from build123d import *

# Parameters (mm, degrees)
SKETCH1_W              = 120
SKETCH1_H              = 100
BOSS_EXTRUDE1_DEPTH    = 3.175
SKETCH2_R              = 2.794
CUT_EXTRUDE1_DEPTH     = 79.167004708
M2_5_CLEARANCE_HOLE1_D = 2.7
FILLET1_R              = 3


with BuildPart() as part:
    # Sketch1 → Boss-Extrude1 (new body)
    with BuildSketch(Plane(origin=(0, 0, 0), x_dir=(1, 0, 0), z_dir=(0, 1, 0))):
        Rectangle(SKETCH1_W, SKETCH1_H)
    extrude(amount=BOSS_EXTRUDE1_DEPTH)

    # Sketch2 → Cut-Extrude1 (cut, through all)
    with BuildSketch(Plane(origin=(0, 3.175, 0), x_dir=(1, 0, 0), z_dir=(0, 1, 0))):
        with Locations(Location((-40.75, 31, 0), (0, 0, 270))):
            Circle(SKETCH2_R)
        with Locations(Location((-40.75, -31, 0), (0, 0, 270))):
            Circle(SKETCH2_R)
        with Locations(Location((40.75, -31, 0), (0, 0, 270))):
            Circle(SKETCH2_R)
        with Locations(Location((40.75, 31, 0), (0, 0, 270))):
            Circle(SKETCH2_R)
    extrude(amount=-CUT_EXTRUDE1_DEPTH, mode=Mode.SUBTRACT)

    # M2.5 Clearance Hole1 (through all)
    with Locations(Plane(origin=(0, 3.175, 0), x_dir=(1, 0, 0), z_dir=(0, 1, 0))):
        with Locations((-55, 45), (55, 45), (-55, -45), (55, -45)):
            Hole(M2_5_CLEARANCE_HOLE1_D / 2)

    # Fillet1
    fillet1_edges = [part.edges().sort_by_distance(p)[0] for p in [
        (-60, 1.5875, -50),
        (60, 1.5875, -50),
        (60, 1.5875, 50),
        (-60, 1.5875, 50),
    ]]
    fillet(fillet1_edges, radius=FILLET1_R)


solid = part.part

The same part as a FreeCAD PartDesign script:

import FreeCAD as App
import Part
import Sketcher

V = App.Vector
Q = App.Units.Quantity


def edges_at(feature, points):
    """Names of the edges that pass closest to the given points."""
    edges = feature.Shape.Edges
    near = lambda p: min(range(len(edges)), key=lambda i: edges[i].distToShape(Part.Vertex(*p))[0])
    return sorted({f"Edge{near(p) + 1}" for p in points})

doc = App.newDocument("Part")
params = doc.addObject("Spreadsheet::Sheet", "Params")
for row, (alias, value) in enumerate([
    ("sketch1_width", "120 mm"),
    ("sketch1_height", "100 mm"),
    ("pad1_length", "3.175 mm"),
    ("sketch3_diameter", "2.7 mm"),
    ("hole_diameter", "2.7 mm"),
    ("fillet_radius", "3 mm"),
], start=1):
    params.set(f"A{row}", alias)
    params.set(f"B{row}", "=" + value)
    params.setAlias(f"B{row}", alias)

body = doc.addObject("PartDesign::Body", "Body")

sketch1 = doc.addObject("Sketcher::SketchObject", "Sketch")
body.addObject(sketch1)
sketch1.AttachmentSupport = (doc.XZ_Plane, [""])
sketch1.MapMode = "FlatFace"
sketch1.addGeometry(Part.LineSegment(V(-60, -50, 0), V(-60, 50, 0)), False)
sketch1.addGeometry(Part.LineSegment(V(-60, 50, 0), V(60, 50, 0)), False)
sketch1.addGeometry(Part.LineSegment(V(60, 50, 0), V(60, -50, 0)), False)
sketch1.addGeometry(Part.LineSegment(V(60, -50, 0), V(-60, -50, 0)), False)
sketch1.addConstraint(Sketcher.Constraint("Coincident", 0, 2, 1, 1))
sketch1.addConstraint(Sketcher.Constraint("Coincident", 1, 2, 2, 1))
sketch1.addConstraint(Sketcher.Constraint("Coincident", 2, 2, 3, 1))
sketch1.addConstraint(Sketcher.Constraint("Coincident", 3, 2, 0, 1))
sketch1.addConstraint(Sketcher.Constraint("Vertical", 0))
sketch1.addConstraint(Sketcher.Constraint("Horizontal", 1))
sketch1.addConstraint(Sketcher.Constraint("Vertical", 2))
sketch1.addConstraint(Sketcher.Constraint("Horizontal", 3))
sketch1.addConstraint(Sketcher.Constraint("Symmetric", 0, 2, 2, 2, -1, 1))
sketch1.addConstraint(Sketcher.Constraint("DistanceX", 1, 1, 1, 2, Q("120 mm")))
sketch1.addConstraint(Sketcher.Constraint("DistanceY", 0, 1, 0, 2, Q("100 mm")))
sketch1.setExpression("Constraints[9]", "Params.sketch1_width")
sketch1.setExpression("Constraints[10]", "Params.sketch1_height")
pad1 = doc.addObject("PartDesign::Pad", "Pad")
body.addObject(pad1)
pad1.Profile = sketch1
pad1.setExpression("Length", "Params.pad1_length")
pad1.Reversed = True

sketch2 = doc.addObject("Sketcher::SketchObject", "Sketch001")
body.addObject(sketch2)
sketch2.AttachmentSupport = (doc.XZ_Plane, [""])
sketch2.MapMode = "FlatFace"
sketch2.AttachmentOffset = App.Placement(V(0, 0, -3.175), App.Rotation())
sketch2.addGeometry(Part.Circle(V(-40.75, -31, 0), V(0, 0, 1), 2.794), False)
sketch2.addGeometry(Part.Circle(V(-40.75, 31, 0), V(0, 0, 1), 2.794), False)
sketch2.addGeometry(Part.Circle(V(40.75, 31, 0), V(0, 0, 1), 2.794), False)
sketch2.addGeometry(Part.Circle(V(40.75, -31, 0), V(0, 0, 1), 2.794), False)
sketch2.addConstraint(Sketcher.Constraint("Equal", 0, 1))
sketch2.addConstraint(Sketcher.Constraint("Equal", 1, 2))
sketch2.addConstraint(Sketcher.Constraint("Equal", 2, 3))
sketch2.addConstraint(Sketcher.Constraint("Symmetric", 0, 3, 2, 3, -1, 1))
sketch2.addConstraint(Sketcher.Constraint("Symmetric", 1, 3, 3, 3, -1, 1))
sketch2.addConstraint(Sketcher.Constraint("Symmetric", 1, 3, 2, 3, -2))
sketch2.addConstraint(Sketcher.Constraint("Diameter", 0, Q("5.588 mm")))
sketch2.addConstraint(Sketcher.Constraint("DistanceY", 0, 3, -1, 1, Q("31 mm")))
sketch2.addConstraint(Sketcher.Constraint("DistanceX", 1, 3, 2, 3, Q("81.5 mm")))
pocket1 = doc.addObject("PartDesign::Pocket", "Pocket")
body.addObject(pocket1)
pocket1.Profile = sketch2
pocket1.Type = "ThroughAll"
pocket1.Reversed = True

sketch3 = doc.addObject("Sketcher::SketchObject", "Sketch002")
body.addObject(sketch3)
sketch3.AttachmentSupport = (doc.XZ_Plane, [""])
sketch3.MapMode = "FlatFace"
sketch3.AttachmentOffset = App.Placement(V(0, 0, -3.175), App.Rotation())
sketch3.addGeometry(Part.Circle(V(-55, -45, 0), V(0, 0, 1), 1.35), False)
sketch3.addGeometry(Part.Circle(V(55, -45, 0), V(0, 0, 1), 1.35), False)
sketch3.addGeometry(Part.Circle(V(-55, 45, 0), V(0, 0, 1), 1.35), False)
sketch3.addGeometry(Part.Circle(V(55, 45, 0), V(0, 0, 1), 1.35), False)
sketch3.addConstraint(Sketcher.Constraint("Equal", 0, 1))
sketch3.addConstraint(Sketcher.Constraint("Equal", 1, 2))
sketch3.addConstraint(Sketcher.Constraint("Equal", 2, 3))
sketch3.addConstraint(Sketcher.Constraint("Symmetric", 1, 3, 2, 3, -1, 1))
sketch3.addConstraint(Sketcher.Constraint("Symmetric", 0, 3, 3, 3, -1, 1))
sketch3.addConstraint(Sketcher.Constraint("Symmetric", 0, 3, 1, 3, -2))
sketch3.addConstraint(Sketcher.Constraint("Diameter", 0, Q("2.7 mm")))
sketch3.addConstraint(Sketcher.Constraint("DistanceX", 0, 3, -1, 1, Q("55 mm")))
sketch3.addConstraint(Sketcher.Constraint("DistanceY", 0, 3, -1, 1, Q("45 mm")))
sketch3.setExpression("Constraints[6]", "Params.sketch3_diameter")
doc.recompute()
hole = doc.addObject("PartDesign::Hole", "Hole")
body.addObject(hole)
hole.Profile = sketch3
hole.ThreadType = "None"
hole.setExpression("Diameter", "Params.hole_diameter")
hole.DepthType = "ThroughAll"
hole.Reversed = True
doc.recompute()

fillet = doc.addObject("PartDesign::Fillet", "Fillet")
body.addObject(fillet)
fillet.Base = (hole, edges_at(hole, [
    (-60, 1.587, -50),
    (60, 1.587, -50),
    (60, 1.587, 50),
    (-60, 1.587, 50),
]))
fillet.setExpression("Radius", "Params.fillet_radius")

doc.recompute()
